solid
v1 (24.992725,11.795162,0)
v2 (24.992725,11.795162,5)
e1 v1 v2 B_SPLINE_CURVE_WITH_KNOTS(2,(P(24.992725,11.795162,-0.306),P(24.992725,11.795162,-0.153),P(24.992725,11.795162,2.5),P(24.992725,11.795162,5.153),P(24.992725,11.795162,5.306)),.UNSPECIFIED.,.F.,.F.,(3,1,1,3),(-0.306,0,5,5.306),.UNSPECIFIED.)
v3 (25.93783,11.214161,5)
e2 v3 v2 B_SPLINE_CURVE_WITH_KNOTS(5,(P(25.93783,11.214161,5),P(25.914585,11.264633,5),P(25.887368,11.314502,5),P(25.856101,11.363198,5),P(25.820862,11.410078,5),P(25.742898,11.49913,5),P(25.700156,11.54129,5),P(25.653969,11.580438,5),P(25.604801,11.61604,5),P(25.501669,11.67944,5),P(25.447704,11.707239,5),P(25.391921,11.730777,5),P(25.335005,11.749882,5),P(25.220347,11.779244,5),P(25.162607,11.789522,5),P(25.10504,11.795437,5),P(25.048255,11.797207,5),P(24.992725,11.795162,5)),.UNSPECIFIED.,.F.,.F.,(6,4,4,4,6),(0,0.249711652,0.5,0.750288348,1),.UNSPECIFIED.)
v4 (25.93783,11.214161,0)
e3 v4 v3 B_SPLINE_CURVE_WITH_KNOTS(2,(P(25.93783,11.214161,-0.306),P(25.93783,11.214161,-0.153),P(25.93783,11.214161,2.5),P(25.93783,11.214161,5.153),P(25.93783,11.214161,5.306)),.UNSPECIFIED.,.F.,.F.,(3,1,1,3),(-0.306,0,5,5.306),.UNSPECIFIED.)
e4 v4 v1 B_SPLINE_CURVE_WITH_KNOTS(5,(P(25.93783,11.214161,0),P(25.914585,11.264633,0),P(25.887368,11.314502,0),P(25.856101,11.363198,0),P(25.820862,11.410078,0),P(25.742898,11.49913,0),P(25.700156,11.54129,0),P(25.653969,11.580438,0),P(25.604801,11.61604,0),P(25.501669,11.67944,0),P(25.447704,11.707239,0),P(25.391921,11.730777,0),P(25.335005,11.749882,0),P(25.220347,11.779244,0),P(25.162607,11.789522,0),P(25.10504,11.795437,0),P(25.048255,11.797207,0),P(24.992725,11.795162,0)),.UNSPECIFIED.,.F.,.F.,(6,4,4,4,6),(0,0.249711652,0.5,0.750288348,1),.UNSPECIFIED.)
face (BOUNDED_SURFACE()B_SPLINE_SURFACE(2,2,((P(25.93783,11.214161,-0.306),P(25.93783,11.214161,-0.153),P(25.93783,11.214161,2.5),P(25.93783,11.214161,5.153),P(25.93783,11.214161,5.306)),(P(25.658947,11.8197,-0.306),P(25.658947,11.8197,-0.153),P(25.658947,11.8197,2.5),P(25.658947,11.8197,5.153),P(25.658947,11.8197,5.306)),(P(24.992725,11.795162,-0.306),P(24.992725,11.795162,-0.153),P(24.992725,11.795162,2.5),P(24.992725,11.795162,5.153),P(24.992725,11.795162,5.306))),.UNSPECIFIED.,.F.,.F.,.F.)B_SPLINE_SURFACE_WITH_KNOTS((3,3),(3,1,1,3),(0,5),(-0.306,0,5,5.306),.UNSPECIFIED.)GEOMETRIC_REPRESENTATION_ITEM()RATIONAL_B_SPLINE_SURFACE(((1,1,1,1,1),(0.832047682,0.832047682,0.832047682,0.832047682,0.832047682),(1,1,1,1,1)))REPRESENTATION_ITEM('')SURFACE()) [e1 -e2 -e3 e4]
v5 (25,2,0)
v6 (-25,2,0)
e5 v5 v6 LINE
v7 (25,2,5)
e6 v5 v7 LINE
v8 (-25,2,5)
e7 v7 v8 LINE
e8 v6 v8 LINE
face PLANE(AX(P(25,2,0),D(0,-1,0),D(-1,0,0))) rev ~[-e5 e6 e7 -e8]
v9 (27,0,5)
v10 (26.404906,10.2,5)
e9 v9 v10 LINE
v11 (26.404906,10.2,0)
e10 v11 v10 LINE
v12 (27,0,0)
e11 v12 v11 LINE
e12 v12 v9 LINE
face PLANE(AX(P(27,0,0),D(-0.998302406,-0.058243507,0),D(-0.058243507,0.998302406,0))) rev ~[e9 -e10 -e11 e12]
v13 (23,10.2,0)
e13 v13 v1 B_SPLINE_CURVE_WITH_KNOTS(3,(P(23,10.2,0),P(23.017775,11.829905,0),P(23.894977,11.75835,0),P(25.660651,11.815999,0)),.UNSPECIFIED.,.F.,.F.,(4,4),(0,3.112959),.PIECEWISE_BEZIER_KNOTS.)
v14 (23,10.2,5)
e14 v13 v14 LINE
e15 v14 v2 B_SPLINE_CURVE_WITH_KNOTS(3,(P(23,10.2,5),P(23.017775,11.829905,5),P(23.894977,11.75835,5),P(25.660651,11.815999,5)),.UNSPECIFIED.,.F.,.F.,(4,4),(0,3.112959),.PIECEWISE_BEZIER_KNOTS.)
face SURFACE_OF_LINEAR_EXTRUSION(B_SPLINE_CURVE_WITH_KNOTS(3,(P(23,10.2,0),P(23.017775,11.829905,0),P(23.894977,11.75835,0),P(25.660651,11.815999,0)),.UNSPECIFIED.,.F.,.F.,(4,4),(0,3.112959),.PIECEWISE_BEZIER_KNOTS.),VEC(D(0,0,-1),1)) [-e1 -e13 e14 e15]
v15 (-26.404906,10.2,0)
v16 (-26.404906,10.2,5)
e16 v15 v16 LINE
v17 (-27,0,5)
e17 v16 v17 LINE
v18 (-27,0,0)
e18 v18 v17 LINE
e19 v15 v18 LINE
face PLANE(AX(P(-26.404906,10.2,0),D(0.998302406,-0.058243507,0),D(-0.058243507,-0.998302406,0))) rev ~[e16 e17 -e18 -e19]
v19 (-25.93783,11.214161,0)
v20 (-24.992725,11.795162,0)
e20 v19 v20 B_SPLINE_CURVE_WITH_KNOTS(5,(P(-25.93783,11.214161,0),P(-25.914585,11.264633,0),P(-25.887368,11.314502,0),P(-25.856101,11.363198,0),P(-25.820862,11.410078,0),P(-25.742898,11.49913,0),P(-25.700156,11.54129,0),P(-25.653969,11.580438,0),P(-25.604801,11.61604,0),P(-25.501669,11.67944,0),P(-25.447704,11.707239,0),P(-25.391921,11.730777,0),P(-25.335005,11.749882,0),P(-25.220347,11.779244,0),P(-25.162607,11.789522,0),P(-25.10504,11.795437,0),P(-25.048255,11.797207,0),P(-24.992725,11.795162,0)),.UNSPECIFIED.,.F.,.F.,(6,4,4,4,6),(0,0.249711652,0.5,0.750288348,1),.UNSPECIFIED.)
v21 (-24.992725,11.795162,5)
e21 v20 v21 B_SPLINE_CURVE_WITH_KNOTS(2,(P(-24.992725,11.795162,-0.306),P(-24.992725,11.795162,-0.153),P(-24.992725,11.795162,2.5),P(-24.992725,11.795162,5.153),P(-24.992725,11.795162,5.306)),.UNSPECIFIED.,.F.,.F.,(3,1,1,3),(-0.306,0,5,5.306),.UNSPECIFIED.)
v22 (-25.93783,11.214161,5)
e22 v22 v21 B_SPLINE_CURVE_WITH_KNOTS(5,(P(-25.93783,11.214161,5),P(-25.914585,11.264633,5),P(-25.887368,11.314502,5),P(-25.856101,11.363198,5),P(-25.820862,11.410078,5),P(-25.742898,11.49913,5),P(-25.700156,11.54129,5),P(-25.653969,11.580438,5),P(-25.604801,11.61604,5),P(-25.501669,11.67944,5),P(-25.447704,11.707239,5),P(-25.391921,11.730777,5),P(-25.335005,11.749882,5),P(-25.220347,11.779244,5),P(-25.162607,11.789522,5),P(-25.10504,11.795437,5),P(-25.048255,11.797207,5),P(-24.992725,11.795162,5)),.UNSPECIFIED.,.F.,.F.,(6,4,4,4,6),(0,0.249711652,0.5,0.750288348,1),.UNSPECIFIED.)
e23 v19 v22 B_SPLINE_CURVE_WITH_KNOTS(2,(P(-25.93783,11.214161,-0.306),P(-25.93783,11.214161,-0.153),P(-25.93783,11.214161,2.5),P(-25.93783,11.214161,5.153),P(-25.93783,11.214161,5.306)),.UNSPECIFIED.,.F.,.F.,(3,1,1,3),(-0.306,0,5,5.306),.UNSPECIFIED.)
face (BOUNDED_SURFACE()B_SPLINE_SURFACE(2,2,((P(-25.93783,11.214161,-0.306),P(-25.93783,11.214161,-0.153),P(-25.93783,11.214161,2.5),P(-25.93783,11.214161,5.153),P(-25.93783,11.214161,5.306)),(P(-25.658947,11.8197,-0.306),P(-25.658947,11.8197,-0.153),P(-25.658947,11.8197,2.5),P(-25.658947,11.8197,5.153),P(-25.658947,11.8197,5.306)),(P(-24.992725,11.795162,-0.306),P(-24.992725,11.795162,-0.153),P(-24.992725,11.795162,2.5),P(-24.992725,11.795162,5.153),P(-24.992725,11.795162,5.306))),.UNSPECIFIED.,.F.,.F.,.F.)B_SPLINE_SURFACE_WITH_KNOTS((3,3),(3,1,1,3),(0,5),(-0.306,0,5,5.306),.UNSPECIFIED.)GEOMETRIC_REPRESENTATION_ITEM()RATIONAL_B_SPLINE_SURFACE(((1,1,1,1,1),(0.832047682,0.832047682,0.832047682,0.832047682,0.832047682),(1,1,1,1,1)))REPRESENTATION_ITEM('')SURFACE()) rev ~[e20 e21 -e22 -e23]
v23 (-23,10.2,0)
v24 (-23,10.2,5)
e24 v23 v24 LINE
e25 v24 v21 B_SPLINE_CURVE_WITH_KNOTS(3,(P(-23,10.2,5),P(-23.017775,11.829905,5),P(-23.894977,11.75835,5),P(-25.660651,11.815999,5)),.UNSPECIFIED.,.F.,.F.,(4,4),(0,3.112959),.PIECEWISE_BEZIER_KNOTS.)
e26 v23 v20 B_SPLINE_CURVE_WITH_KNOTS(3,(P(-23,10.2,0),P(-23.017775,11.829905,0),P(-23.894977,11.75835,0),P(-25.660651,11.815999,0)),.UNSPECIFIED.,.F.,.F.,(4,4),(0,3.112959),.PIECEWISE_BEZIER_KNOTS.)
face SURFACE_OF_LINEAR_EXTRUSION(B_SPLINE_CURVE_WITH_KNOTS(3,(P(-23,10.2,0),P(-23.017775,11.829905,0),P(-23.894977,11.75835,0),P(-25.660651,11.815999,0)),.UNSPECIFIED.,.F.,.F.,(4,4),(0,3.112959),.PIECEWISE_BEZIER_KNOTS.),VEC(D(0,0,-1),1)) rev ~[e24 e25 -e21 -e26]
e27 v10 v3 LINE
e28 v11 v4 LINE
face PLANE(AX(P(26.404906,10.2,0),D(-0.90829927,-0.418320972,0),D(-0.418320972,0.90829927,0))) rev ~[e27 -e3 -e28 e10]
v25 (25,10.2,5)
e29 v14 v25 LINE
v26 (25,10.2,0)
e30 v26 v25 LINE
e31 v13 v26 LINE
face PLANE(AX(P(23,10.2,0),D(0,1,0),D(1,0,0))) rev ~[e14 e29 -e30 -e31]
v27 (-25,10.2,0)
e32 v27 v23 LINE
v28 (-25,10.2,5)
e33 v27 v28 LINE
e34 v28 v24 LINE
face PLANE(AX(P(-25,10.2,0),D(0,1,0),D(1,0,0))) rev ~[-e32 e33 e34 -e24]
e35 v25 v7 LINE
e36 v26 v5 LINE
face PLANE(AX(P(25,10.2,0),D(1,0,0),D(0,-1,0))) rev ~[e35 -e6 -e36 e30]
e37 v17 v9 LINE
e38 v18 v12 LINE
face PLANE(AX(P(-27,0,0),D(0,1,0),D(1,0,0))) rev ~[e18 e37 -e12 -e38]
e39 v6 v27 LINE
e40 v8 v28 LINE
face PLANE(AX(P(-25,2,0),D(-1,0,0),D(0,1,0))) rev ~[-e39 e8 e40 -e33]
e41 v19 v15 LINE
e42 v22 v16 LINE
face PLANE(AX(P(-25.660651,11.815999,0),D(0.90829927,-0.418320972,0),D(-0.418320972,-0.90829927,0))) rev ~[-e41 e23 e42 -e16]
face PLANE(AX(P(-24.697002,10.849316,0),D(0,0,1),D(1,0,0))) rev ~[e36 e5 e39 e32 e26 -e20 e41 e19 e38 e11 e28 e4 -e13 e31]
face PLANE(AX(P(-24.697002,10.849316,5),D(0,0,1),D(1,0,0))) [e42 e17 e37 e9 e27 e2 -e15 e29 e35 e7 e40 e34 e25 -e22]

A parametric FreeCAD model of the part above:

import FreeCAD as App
import Part
import Sketcher


def edges_at(feature, points):
    """Names of the edges that pass closest to the given points."""
    edges = feature.Shape.Edges
    near = lambda p: min(range(len(edges)), key=lambda i: edges[i].distToShape(Part.Vertex(*p))[0])
    return sorted({f"Edge{near(p) + 1}" for p in points})

doc = App.newDocument("Part")
params = doc.addObject("Spreadsheet::Sheet", "Params")
for row, (alias, value) in enumerate([
    ("sketch1_width", "2 mm"),
    ("sketch1_width2", "54 mm"),
    ("sketch1_height", "8.2 mm"),
    ("pad1_length", "5 mm"),
    ("fillet_radius", "1 mm"),
    ("fillet2_radius", "1 mm"),
], start=1):
    params.set(f"A{row}", alias)
    params.set(f"B{row}", "=" + value)
    params.setAlias(f"B{row}", alias)

body = doc.addObject("PartDesign::Body", "Body")

# Sketch on XY plane
sketch1 = body.newObject("Sketcher::SketchObject", "Sketch")
sketch1.AttachmentSupport = (doc.getObject("XY_Plane"), [""])
sketch1.MapMode = "FlatFace"
sketch1.addGeometry(Part.LineSegment(App.Vector(-25, 10.2, 0), App.Vector(-23, 10.2, 0)), False)
sketch1.addGeometry(Part.BSplineCurve([App.Vector(-23, 10.2, 0), App.Vector(-23.017775, 11.829905, 0), App.Vector(-23.894977, 11.75835, 0), App.Vector(-25.660651, 11.815999, 0)], [4, 4], [0, 3.112959], False, 3, [1, 1, 1, 1], False), False)
sketch1.addGeometry(Part.LineSegment(App.Vector(-25.660651, 11.815999, 0), App.Vector(-26.404906, 10.2, 0)), False)
sketch1.addGeometry(Part.LineSegment(App.Vector(-26.404906, 10.2, 0), App.Vector(-27, 0, 0)), False)
sketch1.addGeometry(Part.LineSegment(App.Vector(-27, 0, 0), App.Vector(27, 0, 0)), False)
sketch1.addGeometry(Part.LineSegment(App.Vector(27, 0, 0), App.Vector(26.404906, 10.2, 0)), False)
sketch1.addGeometry(Part.LineSegment(App.Vector(26.404906, 10.2, 0), App.Vector(25.660651, 11.815999, 0)), False)
sketch1.addGeometry(Part.BSplineCurve([App.Vector(23, 10.2, 0), App.Vector(23.017775, 11.829905, 0), App.Vector(23.894977, 11.75835, 0), App.Vector(25.660651, 11.815999, 0)], [4, 4], [0, 3.112959], False, 3, [1, 1, 1, 1], False), False)
sketch1.addGeometry(Part.LineSegment(App.Vector(23, 10.2, 0), App.Vector(25, 10.2, 0)), False)
sketch1.addGeometry(Part.LineSegment(App.Vector(25, 10.2, 0), App.Vector(25, 2, 0)), False)
sketch1.addGeometry(Part.LineSegment(App.Vector(25, 2, 0), App.Vector(-25, 2, 0)), False)
sketch1.addGeometry(Part.LineSegment(App.Vector(-25, 2, 0), App.Vector(-25, 10.2, 0)), False)
sketch1.addConstraint(Sketcher.Constraint("Block", 1))
sketch1.addConstraint(Sketcher.Constraint("Block", 7))
sketch1.addConstraint(Sketcher.Constraint("Coincident", 0, 2, 1, 1))
sketch1.addConstraint(Sketcher.Constraint("Coincident", 1, 2, 2, 1))
sketch1.addConstraint(Sketcher.Constraint("Coincident", 2, 2, 3, 1))
sketch1.addConstraint(Sketcher.Constraint("Coincident", 3, 2, 4, 1))
sketch1.addConstraint(Sketcher.Constraint("Coincident", 4, 2, 5, 1))
sketch1.addConstraint(Sketcher.Constraint("Coincident", 5, 2, 6, 1))
sketch1.addConstraint(Sketcher.Constraint("Coincident", 6, 2, 7, 2))
sketch1.addConstraint(Sketcher.Constraint("Coincident", 7, 1, 8, 1))
sketch1.addConstraint(Sketcher.Constraint("Coincident", 8, 2, 9, 1))
sketch1.addConstraint(Sketcher.Constraint("Coincident", 9, 2, 10, 1))
sketch1.addConstraint(Sketcher.Constraint("Coincident", 10, 2, 11, 1))
sketch1.addConstraint(Sketcher.Constraint("Coincident", 11, 2, 0, 1))
sketch1.addConstraint(Sketcher.Constraint("Horizontal", 0))
sketch1.addConstraint(Sketcher.Constraint("Horizontal", 4))
sketch1.addConstraint(Sketcher.Constraint("Horizontal", 8))
sketch1.addConstraint(Sketcher.Constraint("Vertical", 9))
sketch1.addConstraint(Sketcher.Constraint("Horizontal", 10))
sketch1.addConstraint(Sketcher.Constraint("Vertical", 11))
sketch1.addConstraint(Sketcher.Constraint("Symmetric", 3, 2, 4, 2, -1, 1))
sketch1.addConstraint(Sketcher.Constraint("Symmetric", 2, 2, 5, 2, -2))
sketch1.addConstraint(Sketcher.Constraint("Horizontal", 0, 2, 2, 2))
sketch1.addConstraint(Sketcher.Constraint("Equal", 0, 8))
sketch1.addConstraint(Sketcher.Constraint("DistanceX", 0, 1, 0, 2, 2.0))
sketch1.addConstraint(Sketcher.Constraint("DistanceX", 4, 1, 4, 2, 54.0))
sketch1.addConstraint(Sketcher.Constraint("DistanceY", 9, 2, 9, 1, 8.2))
sketch1.addConstraint(Sketcher.Constraint("Distance", 2, 1.779148))
sketch1.setExpression("Constraints[24]", "Params.sketch1_width")
sketch1.setExpression("Constraints[25]", "Params.sketch1_width2")
sketch1.setExpression("Constraints[26]", "Params.sketch1_height")
pad1 = body.newObject("PartDesign::Pad", "Pad")
pad1.Profile = sketch1
pad1.setExpression("Length", "Params.pad1_length")
doc.recompute()

fillet = body.newObject("PartDesign::Fillet", "Fillet")
fillet.Base = (pad1, edges_at(pad1, [(25.661, 11.816, 2.5)]))
fillet.setExpression("Radius", "Params.fillet_radius")
doc.recompute()

fillet2 = body.newObject("PartDesign::Fillet", "Fillet001")
fillet2.Base = (fillet, edges_at(fillet, [(-25.661, 11.816, 2.5)]))
fillet2.setExpression("Radius", "Params.fillet2_radius")

doc.recompute()
